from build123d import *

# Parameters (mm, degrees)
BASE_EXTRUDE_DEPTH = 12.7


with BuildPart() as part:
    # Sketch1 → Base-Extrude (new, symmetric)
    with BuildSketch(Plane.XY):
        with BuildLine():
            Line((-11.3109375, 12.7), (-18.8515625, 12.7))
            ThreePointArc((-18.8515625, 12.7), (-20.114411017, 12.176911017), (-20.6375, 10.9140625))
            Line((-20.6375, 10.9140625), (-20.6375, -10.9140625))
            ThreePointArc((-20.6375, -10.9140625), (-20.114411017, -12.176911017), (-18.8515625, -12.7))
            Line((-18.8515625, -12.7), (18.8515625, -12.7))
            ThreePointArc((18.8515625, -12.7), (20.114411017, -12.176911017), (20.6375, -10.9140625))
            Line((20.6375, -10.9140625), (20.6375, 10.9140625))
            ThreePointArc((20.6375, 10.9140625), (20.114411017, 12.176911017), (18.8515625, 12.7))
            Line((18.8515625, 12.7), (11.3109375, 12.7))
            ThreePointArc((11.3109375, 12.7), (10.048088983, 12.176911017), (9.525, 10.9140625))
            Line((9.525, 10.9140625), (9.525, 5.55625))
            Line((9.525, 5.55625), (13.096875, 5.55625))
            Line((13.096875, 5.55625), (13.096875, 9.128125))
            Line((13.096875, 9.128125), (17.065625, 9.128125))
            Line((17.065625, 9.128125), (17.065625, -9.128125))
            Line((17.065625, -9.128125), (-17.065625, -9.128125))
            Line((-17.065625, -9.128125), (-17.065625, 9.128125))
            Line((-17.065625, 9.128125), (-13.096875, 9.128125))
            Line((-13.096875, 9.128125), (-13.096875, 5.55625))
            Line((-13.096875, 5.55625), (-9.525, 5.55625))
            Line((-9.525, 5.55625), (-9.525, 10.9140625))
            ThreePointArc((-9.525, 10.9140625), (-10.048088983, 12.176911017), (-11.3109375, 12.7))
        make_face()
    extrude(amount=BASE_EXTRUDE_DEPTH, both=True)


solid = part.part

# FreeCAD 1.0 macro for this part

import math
import FreeCAD as App
import Part
import Sketcher
Q = App.Units.Quantity

doc = App.newDocument("Part")
body = doc.addObject("PartDesign::Body", "Body")

sketch1 = body.newObject("Sketcher::SketchObject", "Sketch")
sketch1.AttachmentSupport = (doc.getObject("XY_Plane"), [""])
sketch1.MapMode = "FlatFace"
sketch1.addGeometry([
    Part.LineSegment(App.Vector(-11.3, 12.7, 0), App.Vector(-18.9, 12.7, 0)),
    Part.ArcOfCircle(Part.Circle(App.Vector(-18.9, 10.9, 0), App.Vector(0, 0, 1), 1.8), math.radians(90), math.radians(180)),
    Part.LineSegment(App.Vector(-20.6, 10.9, 0), App.Vector(-20.6, -10.9, 0)),
    Part.ArcOfCircle(Part.Circle(App.Vector(-18.9, -10.9, 0), App.Vector(0, 0, 1), 1.8), math.radians(180), math.radians(270)),
    Part.LineSegment(App.Vector(-18.9, -12.7, 0), App.Vector(18.9, -12.7, 0)),
    Part.ArcOfCircle(Part.Circle(App.Vector(18.9, -10.9, 0), App.Vector(0, 0, 1), 1.8), math.radians(-90), math.radians(0)),
    Part.LineSegment(App.Vector(20.6, -10.9, 0), App.Vector(20.6, 10.9, 0)),
    Part.ArcOfCircle(Part.Circle(App.Vector(18.9, 10.9, 0), App.Vector(0, 0, 1), 1.8), math.radians(0), math.radians(90)),
    Part.LineSegment(App.Vector(18.9, 12.7, 0), App.Vector(11.3, 12.7, 0)),
    Part.ArcOfCircle(Part.Circle(App.Vector(11.3, 10.9, 0), App.Vector(0, 0, 1), 1.8), math.radians(90), math.radians(180)),
    Part.LineSegment(App.Vector(9.5, 10.9, 0), App.Vector(9.5, 5.6, 0)),
    Part.LineSegment(App.Vector(9.5, 5.6, 0), App.Vector(13.1, 5.6, 0)),
    Part.LineSegment(App.Vector(13.1, 5.6, 0), App.Vector(13.1, 9.1, 0)),
    Part.LineSegment(App.Vector(13.1, 9.1, 0), App.Vector(17.1, 9.1, 0)),
    Part.LineSegment(App.Vector(17.1, 9.1, 0), App.Vector(17.1, -9.1, 0)),
    Part.LineSegment(App.Vector(17.1, -9.1, 0), App.Vector(-17.1, -9.1, 0)),
    Part.LineSegment(App.Vector(-17.1, -9.1, 0), App.Vector(-17.1, 9.1, 0)),
    Part.LineSegment(App.Vector(-17.1, 9.1, 0), App.Vector(-13.1, 9.1, 0)),
    Part.LineSegment(App.Vector(-13.1, 9.1, 0), App.Vector(-13.1, 5.6, 0)),
    Part.LineSegment(App.Vector(-13.1, 5.6, 0), App.Vector(-9.5, 5.6, 0)),
    Part.LineSegment(App.Vector(-9.5, 5.6, 0), App.Vector(-9.5, 10.9, 0)),
    Part.ArcOfCircle(Part.Circle(App.Vector(-11.3, 10.9, 0), App.Vector(0, 0, 1), 1.8), math.radians(0), math.radians(90)),
], False)
sketch1.addConstraint([
    Sketcher.Constraint("Tangent", 0, 2, 1, 1),
    Sketcher.Constraint("Tangent", 1, 2, 2, 1),
    Sketcher.Constraint("Tangent", 2, 2, 3, 1),
    Sketcher.Constraint("Tangent", 3, 2, 4, 1),
    Sketcher.Constraint("Tangent", 4, 2, 5, 1),
    Sketcher.Constraint("Tangent", 5, 2, 6, 1),
    Sketcher.Constraint("Tangent", 6, 2, 7, 1),
    Sketcher.Constraint("Tangent", 7, 2, 8, 1),
    Sketcher.Constraint("Tangent", 8, 2, 9, 1),
    Sketcher.Constraint("Tangent", 9, 2, 10, 1),
    Sketcher.Constraint("Coincident", 10, 2, 11, 1),
    Sketcher.Constraint("Coincident", 11, 2, 12, 1),
    Sketcher.Constraint("Coincident", 12, 2, 13, 1),
    Sketcher.Constraint("Coincident", 13, 2, 14, 1),
    Sketcher.Constraint("Coincident", 14, 2, 15, 1),
    Sketcher.Constraint("Coincident", 15, 2, 16, 1),
    Sketcher.Constraint("Coincident", 16, 2, 17, 1),
    Sketcher.Constraint("Coincident", 17, 2, 18, 1),
    Sketcher.Constraint("Coincident", 18, 2, 19, 1),
    Sketcher.Constraint("Coincident", 19, 2, 20, 1),
    Sketcher.Constraint("Tangent", 20, 2, 21, 1),
    Sketcher.Constraint("Tangent", 21, 2, 0, 1),
    Sketcher.Constraint("Horizontal", 0),
    Sketcher.Constraint("Vertical", 2),
    Sketcher.Constraint("Horizontal", 4),
    Sketcher.Constraint("Vertical", 6),
    Sketcher.Constraint("Horizontal", 8),
    Sketcher.Constraint("Vertical", 10),
    Sketcher.Constraint("Horizontal", 11),
    Sketcher.Constraint("Vertical", 12),
    Sketcher.Constraint("Horizontal", 13),
    Sketcher.Constraint("Vertical", 14),
    Sketcher.Constraint("Horizontal", 15),
    Sketcher.Constraint("Vertical", 16),
    Sketcher.Constraint("Horizontal", 17),
    Sketcher.Constraint("Vertical", 18),
    Sketcher.Constraint("Horizontal", 19),
    Sketcher.Constraint("Vertical", 20),
    Sketcher.Constraint("Equal", 1, 3),
    Sketcher.Constraint("Equal", 3, 5),
    Sketcher.Constraint("Equal", 5, 7),
    Sketcher.Constraint("Equal", 7, 9),
    Sketcher.Constraint("Equal", 9, 21),
    Sketcher.Constraint("Symmetric", 1, 3, 5, 3, -1, 1),
    Sketcher.Constraint("Symmetric", 13, 2, 15, 2, -1, 1),
    Sketcher.Constraint("Symmetric", 9, 3, 21, 3, -2),
    Sketcher.Constraint("Symmetric", 12, 2, 17, 2, -2),
    Sketcher.Constraint("Horizontal", 11, 2, 18, 2),
    Sketcher.Constraint("Equal", 19, 12),
    Sketcher.Constraint("DistanceY", -1, 1, 0, 2, Q("0.5 in")),
    Sketcher.Constraint("DistanceX", 0, 2, 0, 1, Q("0.296875 in")),
    Sketcher.Constraint("DistanceX", 4, 1, 4, 2, Q("1.484375 in")),
    Sketcher.Constraint("DistanceX", 11, 1, 11, 2, Q("0.140625 in")),
    Sketcher.Constraint("DistanceX", 13, 1, 13, 2, Q("0.15625 in")),
    Sketcher.Constraint("DistanceX", 15, 2, 15, 1, Q("1.34375 in")),
    Sketcher.Constraint("DistanceY", 14, 2, 14, 1, Q("0.71875 in")),
])
pad1 = body.newObject("PartDesign::Pad", "Pad")
pad1.Profile = sketch1
pad1.Length = Q("1 in")
pad1.Midplane = True

doc.recompute()
